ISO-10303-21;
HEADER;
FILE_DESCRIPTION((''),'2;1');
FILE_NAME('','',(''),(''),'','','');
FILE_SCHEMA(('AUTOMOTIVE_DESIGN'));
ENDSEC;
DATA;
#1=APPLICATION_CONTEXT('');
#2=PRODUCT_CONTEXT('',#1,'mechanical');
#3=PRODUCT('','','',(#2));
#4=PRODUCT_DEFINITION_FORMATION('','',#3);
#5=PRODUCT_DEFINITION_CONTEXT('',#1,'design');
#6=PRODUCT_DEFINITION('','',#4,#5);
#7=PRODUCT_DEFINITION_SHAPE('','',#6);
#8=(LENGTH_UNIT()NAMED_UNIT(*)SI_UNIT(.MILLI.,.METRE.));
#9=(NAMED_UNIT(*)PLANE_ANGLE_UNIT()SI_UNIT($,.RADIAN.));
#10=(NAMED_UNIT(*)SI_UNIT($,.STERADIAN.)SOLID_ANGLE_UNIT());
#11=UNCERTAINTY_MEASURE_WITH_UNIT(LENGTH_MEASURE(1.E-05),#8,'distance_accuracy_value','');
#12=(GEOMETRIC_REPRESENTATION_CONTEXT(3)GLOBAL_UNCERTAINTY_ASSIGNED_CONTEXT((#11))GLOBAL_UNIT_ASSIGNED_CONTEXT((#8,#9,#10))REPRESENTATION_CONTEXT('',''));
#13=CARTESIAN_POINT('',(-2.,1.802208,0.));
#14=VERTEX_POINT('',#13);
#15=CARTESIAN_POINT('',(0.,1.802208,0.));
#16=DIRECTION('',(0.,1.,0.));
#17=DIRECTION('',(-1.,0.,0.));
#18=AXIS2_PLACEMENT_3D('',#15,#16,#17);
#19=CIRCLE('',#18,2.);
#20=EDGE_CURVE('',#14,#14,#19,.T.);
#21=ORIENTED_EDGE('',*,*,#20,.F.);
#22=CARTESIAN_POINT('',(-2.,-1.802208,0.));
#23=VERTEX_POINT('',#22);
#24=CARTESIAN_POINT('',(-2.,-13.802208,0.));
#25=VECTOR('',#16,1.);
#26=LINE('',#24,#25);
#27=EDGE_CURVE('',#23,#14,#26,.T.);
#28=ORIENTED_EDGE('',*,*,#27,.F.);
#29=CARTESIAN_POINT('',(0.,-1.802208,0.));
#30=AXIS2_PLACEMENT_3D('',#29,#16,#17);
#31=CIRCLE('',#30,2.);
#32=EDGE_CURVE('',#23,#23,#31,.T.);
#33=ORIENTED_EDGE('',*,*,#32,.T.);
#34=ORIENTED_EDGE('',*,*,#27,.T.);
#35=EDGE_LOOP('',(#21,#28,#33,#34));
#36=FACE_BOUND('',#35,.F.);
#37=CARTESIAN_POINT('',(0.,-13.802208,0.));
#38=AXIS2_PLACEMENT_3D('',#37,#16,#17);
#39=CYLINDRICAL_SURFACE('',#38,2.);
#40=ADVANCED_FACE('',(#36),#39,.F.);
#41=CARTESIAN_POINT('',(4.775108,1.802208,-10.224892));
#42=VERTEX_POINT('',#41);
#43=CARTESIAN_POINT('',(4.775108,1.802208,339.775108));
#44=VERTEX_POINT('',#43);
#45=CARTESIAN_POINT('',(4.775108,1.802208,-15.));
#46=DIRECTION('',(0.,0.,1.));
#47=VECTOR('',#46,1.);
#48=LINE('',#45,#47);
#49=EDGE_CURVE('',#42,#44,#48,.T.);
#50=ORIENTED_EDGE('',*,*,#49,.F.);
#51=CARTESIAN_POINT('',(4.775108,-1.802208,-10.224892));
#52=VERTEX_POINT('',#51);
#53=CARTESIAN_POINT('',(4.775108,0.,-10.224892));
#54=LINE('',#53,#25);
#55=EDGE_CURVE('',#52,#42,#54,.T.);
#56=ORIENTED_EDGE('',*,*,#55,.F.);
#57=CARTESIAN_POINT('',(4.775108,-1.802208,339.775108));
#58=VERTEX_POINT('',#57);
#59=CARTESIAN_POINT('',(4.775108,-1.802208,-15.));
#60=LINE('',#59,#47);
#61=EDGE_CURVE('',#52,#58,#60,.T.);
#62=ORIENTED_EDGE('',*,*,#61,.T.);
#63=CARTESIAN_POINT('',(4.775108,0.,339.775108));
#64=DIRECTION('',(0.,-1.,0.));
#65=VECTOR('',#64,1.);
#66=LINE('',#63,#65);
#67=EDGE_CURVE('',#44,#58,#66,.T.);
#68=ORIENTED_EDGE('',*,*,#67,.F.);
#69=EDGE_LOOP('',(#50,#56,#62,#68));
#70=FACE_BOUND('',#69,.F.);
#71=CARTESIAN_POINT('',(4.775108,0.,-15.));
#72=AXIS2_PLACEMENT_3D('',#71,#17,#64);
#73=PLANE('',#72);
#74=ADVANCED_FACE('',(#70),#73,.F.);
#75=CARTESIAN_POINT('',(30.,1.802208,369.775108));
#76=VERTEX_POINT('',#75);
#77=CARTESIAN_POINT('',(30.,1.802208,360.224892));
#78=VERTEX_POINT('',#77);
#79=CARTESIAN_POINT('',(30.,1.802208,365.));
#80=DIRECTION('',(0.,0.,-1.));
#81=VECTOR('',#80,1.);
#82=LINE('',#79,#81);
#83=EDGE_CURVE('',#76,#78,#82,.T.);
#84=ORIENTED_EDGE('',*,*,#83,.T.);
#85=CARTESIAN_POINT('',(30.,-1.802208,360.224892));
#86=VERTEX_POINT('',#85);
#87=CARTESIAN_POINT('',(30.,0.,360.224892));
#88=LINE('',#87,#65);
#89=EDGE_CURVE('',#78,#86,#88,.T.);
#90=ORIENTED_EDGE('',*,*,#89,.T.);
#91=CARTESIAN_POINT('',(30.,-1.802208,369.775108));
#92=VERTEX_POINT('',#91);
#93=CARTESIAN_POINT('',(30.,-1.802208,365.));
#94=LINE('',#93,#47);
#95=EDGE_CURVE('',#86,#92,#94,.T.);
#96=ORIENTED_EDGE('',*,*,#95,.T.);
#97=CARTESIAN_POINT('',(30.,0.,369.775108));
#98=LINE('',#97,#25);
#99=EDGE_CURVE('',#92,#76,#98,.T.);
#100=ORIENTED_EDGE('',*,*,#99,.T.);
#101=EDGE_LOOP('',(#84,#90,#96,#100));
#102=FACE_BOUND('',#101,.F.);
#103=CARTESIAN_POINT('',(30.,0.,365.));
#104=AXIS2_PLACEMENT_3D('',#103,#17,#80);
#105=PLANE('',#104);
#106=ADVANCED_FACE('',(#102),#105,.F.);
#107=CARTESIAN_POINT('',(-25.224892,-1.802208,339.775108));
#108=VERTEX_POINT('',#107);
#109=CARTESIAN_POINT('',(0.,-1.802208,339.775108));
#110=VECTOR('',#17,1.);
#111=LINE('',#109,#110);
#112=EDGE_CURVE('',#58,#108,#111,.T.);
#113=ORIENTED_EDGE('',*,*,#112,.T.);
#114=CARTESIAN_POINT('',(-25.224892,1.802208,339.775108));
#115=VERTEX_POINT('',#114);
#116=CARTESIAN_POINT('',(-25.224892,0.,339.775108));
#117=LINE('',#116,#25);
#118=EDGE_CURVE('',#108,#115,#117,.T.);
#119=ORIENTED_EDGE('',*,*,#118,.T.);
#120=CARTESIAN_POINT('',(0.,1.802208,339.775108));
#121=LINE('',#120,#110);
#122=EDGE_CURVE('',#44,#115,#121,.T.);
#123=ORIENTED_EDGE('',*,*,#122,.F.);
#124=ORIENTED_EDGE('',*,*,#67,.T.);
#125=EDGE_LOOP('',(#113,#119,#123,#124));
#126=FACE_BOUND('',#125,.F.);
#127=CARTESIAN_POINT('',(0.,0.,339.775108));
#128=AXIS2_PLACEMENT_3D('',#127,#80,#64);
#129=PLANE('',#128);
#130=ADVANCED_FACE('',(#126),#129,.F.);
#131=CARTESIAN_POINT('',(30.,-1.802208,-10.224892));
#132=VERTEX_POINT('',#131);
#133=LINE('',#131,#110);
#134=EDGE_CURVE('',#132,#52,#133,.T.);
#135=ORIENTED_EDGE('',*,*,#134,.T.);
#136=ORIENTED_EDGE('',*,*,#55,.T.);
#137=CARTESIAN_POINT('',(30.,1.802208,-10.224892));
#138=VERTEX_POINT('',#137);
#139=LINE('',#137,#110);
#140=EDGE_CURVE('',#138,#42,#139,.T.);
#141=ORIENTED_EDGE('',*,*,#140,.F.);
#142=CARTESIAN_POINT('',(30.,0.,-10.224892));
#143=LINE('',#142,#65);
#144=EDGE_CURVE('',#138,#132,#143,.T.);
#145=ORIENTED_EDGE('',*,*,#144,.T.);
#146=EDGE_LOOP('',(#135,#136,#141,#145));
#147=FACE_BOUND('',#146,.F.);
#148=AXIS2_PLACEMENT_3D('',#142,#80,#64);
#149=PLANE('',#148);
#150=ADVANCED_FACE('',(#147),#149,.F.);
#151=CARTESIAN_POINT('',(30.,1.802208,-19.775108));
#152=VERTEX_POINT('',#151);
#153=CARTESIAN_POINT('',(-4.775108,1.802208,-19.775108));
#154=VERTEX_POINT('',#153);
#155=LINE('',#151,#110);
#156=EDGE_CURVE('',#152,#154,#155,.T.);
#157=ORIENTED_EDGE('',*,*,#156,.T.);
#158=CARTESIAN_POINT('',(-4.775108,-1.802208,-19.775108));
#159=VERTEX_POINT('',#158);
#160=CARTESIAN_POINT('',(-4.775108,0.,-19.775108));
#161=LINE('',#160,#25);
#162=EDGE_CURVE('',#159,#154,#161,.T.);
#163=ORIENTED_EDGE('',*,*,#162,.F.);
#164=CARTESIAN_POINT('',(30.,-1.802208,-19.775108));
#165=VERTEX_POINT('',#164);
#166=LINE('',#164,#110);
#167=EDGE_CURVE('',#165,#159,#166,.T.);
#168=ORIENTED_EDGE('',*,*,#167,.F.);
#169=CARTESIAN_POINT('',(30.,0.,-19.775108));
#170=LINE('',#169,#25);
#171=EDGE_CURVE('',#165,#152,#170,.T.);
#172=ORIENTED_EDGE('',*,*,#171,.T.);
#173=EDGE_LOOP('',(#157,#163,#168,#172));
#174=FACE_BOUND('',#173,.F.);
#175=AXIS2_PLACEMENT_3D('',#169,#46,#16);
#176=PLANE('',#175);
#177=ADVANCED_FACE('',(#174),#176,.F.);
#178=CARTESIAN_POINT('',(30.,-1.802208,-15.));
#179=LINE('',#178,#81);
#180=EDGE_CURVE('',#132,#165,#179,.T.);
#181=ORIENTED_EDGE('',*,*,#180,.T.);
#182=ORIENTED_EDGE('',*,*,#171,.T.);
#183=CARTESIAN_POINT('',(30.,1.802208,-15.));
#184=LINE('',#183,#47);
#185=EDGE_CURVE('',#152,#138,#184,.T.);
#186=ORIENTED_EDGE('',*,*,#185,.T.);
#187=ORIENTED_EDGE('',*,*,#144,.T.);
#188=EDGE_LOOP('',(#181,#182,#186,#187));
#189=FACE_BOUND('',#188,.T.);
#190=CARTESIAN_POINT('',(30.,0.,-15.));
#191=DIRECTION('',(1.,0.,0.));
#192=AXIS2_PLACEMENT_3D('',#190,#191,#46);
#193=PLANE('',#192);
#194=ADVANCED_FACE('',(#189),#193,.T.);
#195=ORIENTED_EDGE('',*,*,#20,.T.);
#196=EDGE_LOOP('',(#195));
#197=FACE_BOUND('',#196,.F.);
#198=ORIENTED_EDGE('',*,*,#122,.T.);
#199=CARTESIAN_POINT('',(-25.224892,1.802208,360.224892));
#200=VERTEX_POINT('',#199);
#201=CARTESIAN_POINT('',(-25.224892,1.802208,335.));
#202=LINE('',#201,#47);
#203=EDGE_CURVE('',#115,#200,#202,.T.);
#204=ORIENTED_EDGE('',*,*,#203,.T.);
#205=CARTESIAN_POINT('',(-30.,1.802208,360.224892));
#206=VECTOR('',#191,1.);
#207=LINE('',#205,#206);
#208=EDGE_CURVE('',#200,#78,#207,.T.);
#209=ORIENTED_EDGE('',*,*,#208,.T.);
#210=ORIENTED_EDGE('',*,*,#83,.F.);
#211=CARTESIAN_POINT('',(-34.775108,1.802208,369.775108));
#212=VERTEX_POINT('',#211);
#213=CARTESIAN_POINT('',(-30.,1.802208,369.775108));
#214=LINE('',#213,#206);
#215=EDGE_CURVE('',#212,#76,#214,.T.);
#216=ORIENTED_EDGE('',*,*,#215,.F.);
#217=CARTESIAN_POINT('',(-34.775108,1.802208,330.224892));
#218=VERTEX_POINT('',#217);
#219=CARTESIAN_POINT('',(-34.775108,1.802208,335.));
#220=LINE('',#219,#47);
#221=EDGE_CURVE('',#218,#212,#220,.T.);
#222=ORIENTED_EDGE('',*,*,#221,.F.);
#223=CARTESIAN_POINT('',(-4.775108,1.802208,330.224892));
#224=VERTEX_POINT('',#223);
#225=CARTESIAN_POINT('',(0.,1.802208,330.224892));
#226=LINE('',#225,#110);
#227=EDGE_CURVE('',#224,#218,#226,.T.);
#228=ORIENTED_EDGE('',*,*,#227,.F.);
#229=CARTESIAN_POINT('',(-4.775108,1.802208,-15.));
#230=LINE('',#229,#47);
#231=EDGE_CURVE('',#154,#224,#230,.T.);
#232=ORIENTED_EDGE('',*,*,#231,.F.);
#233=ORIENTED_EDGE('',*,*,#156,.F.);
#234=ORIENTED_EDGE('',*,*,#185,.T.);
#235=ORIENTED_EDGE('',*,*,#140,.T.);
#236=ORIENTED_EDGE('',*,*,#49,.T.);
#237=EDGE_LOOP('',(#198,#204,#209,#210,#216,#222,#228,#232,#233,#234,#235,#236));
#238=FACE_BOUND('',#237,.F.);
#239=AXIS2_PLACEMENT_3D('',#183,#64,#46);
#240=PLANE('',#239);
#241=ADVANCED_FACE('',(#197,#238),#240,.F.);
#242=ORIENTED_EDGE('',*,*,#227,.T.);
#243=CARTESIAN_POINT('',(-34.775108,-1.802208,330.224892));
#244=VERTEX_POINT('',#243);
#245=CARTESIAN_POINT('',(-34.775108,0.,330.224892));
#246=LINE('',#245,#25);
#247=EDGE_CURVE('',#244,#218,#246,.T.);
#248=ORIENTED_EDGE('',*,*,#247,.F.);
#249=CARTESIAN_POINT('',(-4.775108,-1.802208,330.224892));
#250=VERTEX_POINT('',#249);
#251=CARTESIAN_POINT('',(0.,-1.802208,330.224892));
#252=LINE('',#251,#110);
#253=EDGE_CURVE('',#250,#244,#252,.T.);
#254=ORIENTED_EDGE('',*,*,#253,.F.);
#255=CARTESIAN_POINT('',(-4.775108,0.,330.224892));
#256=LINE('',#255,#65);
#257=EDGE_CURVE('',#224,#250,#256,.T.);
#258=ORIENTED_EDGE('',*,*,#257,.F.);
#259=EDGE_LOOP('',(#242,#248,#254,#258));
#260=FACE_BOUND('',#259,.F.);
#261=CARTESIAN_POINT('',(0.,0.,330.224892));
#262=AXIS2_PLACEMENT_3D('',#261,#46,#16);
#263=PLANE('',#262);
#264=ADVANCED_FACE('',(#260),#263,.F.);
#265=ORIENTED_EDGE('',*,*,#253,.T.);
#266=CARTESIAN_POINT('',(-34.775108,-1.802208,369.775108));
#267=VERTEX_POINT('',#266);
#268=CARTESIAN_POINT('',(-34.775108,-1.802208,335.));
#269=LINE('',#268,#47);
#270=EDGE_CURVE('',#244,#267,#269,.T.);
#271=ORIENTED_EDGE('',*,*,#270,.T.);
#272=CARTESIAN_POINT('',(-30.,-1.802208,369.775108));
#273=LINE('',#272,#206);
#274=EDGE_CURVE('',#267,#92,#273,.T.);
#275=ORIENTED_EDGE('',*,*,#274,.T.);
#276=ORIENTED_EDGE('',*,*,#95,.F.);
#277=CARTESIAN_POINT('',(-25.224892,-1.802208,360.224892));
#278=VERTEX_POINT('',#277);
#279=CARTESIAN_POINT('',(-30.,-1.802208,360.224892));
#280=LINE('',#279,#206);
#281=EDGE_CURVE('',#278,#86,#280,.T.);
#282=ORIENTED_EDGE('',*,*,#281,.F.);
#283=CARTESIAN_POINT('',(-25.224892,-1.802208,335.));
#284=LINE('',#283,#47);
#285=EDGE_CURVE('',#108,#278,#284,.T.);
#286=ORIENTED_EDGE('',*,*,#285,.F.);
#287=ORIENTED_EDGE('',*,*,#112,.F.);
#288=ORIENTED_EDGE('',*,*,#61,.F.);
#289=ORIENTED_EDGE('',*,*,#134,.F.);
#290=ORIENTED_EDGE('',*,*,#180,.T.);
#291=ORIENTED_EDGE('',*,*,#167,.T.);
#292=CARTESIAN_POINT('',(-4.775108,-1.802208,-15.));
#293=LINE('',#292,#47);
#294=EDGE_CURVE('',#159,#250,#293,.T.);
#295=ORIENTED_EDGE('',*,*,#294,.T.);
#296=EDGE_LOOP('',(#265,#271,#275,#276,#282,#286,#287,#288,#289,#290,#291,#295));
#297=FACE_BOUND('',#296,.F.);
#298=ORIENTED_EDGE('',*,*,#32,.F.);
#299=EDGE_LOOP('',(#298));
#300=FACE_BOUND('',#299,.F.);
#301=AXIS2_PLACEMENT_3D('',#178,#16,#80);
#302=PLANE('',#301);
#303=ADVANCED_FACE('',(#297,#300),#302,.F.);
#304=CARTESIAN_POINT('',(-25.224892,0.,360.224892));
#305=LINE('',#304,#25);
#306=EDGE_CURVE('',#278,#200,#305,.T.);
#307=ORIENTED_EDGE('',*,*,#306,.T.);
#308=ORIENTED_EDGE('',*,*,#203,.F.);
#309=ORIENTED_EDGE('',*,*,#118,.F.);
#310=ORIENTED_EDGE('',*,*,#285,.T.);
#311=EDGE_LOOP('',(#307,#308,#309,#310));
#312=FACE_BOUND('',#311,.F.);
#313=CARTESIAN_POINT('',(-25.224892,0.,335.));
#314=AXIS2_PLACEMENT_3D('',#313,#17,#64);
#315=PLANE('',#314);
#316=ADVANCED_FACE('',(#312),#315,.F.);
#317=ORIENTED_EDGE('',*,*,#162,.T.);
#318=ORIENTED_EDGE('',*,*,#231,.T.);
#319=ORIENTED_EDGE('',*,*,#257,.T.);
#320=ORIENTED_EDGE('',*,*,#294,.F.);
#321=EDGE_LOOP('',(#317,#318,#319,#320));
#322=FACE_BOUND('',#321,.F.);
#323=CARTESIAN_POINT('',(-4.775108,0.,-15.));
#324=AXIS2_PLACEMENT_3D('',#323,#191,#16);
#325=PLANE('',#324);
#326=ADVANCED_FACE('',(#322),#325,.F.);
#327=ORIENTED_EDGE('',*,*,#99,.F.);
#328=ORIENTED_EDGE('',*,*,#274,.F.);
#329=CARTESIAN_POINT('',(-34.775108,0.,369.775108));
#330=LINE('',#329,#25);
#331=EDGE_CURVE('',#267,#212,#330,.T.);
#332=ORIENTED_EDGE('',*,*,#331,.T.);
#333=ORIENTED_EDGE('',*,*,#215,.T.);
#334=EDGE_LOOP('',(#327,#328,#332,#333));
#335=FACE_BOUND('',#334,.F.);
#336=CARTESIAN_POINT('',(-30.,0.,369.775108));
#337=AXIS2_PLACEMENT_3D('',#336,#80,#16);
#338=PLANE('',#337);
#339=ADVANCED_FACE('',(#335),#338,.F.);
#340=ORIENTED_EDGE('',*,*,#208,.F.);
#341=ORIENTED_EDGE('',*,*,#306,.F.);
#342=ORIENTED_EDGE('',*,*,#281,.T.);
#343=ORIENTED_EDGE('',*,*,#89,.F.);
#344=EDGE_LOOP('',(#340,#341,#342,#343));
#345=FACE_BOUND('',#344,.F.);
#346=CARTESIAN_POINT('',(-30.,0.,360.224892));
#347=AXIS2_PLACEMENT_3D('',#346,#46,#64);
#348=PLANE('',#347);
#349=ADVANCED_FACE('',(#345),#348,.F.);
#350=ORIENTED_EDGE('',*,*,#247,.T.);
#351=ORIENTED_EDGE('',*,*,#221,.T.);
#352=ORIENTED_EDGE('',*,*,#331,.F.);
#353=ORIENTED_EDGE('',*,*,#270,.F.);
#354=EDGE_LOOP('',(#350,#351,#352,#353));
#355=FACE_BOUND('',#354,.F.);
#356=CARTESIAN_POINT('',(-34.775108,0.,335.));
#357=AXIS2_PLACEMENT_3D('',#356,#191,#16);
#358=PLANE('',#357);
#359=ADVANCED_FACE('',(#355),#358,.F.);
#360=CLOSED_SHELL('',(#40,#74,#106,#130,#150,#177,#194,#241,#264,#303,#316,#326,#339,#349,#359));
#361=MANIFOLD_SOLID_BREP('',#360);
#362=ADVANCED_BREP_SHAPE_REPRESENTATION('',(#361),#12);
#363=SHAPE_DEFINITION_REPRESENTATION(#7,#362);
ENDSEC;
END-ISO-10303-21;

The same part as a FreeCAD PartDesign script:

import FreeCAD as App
import Part
import Sketcher
from FreeCAD import Vector
Q = App.Units.Quantity


def add_polygon(sketch, points):
    """Adds a closed chain of lines whose ends are joined by coincident constraints."""
    first, n = sketch.GeometryCount, len(points)
    for a, b in zip(points, points[1:] + points[:1]):
        sketch.addGeometry(Part.LineSegment(App.Vector(*a, 0), App.Vector(*b, 0)), False)
    for i in range(n):
        sketch.addConstraint(Sketcher.Constraint("Coincident", first + i, 2, first + (i + 1) % n, 1))

doc = App.newDocument("Part")
body = doc.addObject("PartDesign::Body", "Body")

# Sketch on YZ plane
sketch1 = doc.addObject("Sketcher::SketchObject", "Sketch")
body.addObject(sketch1)
sketch1.AttachmentSupport = (doc.YZ_Plane, [""])
sketch1.MapMode = "FlatFace"
add_polygon(sketch1, [(-1.8, -10.2), (-1.8, -19.8), (1.8, -19.8), (1.8, -10.2)])  # lines 0-3
sketch1.addConstraint(Sketcher.Constraint("Vertical", 0))
sketch1.addConstraint(Sketcher.Constraint("Horizontal", 1))
sketch1.addConstraint(Sketcher.Constraint("Vertical", 2))
sketch1.addConstraint(Sketcher.Constraint("Horizontal", 3))
sketch1.addConstraint(Sketcher.Constraint("DistanceX", 1, 1, 1, 2, Q("3.604417 mm")))
sketch1.addConstraint(Sketcher.Constraint("DistanceY", 0, 2, 0, 1, Q("9.550215 mm")))
sketch1.addConstraint(Sketcher.Constraint("DistanceX", 0, 2, -1, 1, Q("1.802208 mm")))
sketch1.addConstraint(Sketcher.Constraint("DistanceY", 0, 2, -1, 1, Q("19.775108 mm")))

# Sketch on XZ plane
sketch2 = doc.addObject("Sketcher::SketchObject", "Sketch001")
body.addObject(sketch2)
sketch2.AttachmentSupport = (doc.XZ_Plane, [""])
sketch2.MapMode = "FlatFace"
sketch2.addGeometry(Part.LineSegment(Vector(30, -15, 0), Vector(0, -15, 0)), False)
sketch2.addGeometry(Part.LineSegment(Vector(0, -15, 0), Vector(0, 335, 0)), False)
sketch2.addGeometry(Part.LineSegment(Vector(0, 335, 0), Vector(-30, 335, 0)), False)
sketch2.addGeometry(Part.LineSegment(Vector(-30, 335, 0), Vector(-30, 365, 0)), False)
sketch2.addGeometry(Part.LineSegment(Vector(-30, 365, 0), Vector(30, 365, 0)), False)
sketch2.addConstraint(Sketcher.Constraint("Coincident", 0, 2, 1, 1))
sketch2.addConstraint(Sketcher.Constraint("Coincident", 1, 2, 2, 1))
sketch2.addConstraint(Sketcher.Constraint("Coincident", 2, 2, 3, 1))
sketch2.addConstraint(Sketcher.Constraint("Coincident", 3, 2, 4, 1))
sketch2.addConstraint(Sketcher.Constraint("Horizontal", 0))
sketch2.addConstraint(Sketcher.Constraint("Vertical", 1))
sketch2.addConstraint(Sketcher.Constraint("Horizontal", 2))
sketch2.addConstraint(Sketcher.Constraint("Vertical", 3))
sketch2.addConstraint(Sketcher.Constraint("Horizontal", 4))
sketch2.addConstraint(Sketcher.Constraint("PointOnObject", 0, 2, -2))
sketch2.addConstraint(Sketcher.Constraint("Vertical", 0, 1, 4, 2))
sketch2.addConstraint(Sketcher.Constraint("Equal", 0, 2))
sketch2.addConstraint(Sketcher.Constraint("Equal", 2, 3))
sketch2.addConstraint(Sketcher.Constraint("DistanceX", 0, 2, 0, 1, Q("30 mm")))
sketch2.addConstraint(Sketcher.Constraint("DistanceY", 1, 1, 1, 2, Q("350 mm")))
sketch2.addConstraint(Sketcher.Constraint("DistanceY", 0, 1, -1, 1, Q("15 mm")))
doc.recompute()

additivepipe = doc.addObject("PartDesign::AdditivePipe", "AdditivePipe")
body.addObject(additivepipe)
additivepipe.Profile = sketch1
additivepipe.Spine = (sketch2, ["Edge1", "Edge2", "Edge3", "Edge4", "Edge5"])
additivepipe.Transition = "Right corner"

# Sketch on XZ plane
sketch3 = doc.addObject("Sketcher::SketchObject", "Sketch002")
body.addObject(sketch3)
sketch3.AttachmentSupport = (doc.XZ_Plane, [""])
sketch3.MapMode = "FlatFace"
sketch3.AttachmentOffset = App.Placement(Vector(0, 0, 1.802208), App.Rotation())
sketch3.addGeometry(Part.Circle(Vector(0, 0, 0), Vector(0, 0, 1), 2), False)
sketch3.addConstraint(Sketcher.Constraint("Coincident", 0, 3, -1, 1))
sketch3.addConstraint(Sketcher.Constraint("Diameter", 0, Q("4 mm")))
doc.recompute()
hole = doc.addObject("PartDesign::Hole", "Hole")
body.addObject(hole)
hole.Profile = sketch3
hole.ThreadType = "None"
hole.Diameter = 4
hole.DepthType = "Dimension"
hole.Depth = 12
hole.DrillPoint = "Angled"
hole.DrillPointAngle = 118

doc.recompute()
